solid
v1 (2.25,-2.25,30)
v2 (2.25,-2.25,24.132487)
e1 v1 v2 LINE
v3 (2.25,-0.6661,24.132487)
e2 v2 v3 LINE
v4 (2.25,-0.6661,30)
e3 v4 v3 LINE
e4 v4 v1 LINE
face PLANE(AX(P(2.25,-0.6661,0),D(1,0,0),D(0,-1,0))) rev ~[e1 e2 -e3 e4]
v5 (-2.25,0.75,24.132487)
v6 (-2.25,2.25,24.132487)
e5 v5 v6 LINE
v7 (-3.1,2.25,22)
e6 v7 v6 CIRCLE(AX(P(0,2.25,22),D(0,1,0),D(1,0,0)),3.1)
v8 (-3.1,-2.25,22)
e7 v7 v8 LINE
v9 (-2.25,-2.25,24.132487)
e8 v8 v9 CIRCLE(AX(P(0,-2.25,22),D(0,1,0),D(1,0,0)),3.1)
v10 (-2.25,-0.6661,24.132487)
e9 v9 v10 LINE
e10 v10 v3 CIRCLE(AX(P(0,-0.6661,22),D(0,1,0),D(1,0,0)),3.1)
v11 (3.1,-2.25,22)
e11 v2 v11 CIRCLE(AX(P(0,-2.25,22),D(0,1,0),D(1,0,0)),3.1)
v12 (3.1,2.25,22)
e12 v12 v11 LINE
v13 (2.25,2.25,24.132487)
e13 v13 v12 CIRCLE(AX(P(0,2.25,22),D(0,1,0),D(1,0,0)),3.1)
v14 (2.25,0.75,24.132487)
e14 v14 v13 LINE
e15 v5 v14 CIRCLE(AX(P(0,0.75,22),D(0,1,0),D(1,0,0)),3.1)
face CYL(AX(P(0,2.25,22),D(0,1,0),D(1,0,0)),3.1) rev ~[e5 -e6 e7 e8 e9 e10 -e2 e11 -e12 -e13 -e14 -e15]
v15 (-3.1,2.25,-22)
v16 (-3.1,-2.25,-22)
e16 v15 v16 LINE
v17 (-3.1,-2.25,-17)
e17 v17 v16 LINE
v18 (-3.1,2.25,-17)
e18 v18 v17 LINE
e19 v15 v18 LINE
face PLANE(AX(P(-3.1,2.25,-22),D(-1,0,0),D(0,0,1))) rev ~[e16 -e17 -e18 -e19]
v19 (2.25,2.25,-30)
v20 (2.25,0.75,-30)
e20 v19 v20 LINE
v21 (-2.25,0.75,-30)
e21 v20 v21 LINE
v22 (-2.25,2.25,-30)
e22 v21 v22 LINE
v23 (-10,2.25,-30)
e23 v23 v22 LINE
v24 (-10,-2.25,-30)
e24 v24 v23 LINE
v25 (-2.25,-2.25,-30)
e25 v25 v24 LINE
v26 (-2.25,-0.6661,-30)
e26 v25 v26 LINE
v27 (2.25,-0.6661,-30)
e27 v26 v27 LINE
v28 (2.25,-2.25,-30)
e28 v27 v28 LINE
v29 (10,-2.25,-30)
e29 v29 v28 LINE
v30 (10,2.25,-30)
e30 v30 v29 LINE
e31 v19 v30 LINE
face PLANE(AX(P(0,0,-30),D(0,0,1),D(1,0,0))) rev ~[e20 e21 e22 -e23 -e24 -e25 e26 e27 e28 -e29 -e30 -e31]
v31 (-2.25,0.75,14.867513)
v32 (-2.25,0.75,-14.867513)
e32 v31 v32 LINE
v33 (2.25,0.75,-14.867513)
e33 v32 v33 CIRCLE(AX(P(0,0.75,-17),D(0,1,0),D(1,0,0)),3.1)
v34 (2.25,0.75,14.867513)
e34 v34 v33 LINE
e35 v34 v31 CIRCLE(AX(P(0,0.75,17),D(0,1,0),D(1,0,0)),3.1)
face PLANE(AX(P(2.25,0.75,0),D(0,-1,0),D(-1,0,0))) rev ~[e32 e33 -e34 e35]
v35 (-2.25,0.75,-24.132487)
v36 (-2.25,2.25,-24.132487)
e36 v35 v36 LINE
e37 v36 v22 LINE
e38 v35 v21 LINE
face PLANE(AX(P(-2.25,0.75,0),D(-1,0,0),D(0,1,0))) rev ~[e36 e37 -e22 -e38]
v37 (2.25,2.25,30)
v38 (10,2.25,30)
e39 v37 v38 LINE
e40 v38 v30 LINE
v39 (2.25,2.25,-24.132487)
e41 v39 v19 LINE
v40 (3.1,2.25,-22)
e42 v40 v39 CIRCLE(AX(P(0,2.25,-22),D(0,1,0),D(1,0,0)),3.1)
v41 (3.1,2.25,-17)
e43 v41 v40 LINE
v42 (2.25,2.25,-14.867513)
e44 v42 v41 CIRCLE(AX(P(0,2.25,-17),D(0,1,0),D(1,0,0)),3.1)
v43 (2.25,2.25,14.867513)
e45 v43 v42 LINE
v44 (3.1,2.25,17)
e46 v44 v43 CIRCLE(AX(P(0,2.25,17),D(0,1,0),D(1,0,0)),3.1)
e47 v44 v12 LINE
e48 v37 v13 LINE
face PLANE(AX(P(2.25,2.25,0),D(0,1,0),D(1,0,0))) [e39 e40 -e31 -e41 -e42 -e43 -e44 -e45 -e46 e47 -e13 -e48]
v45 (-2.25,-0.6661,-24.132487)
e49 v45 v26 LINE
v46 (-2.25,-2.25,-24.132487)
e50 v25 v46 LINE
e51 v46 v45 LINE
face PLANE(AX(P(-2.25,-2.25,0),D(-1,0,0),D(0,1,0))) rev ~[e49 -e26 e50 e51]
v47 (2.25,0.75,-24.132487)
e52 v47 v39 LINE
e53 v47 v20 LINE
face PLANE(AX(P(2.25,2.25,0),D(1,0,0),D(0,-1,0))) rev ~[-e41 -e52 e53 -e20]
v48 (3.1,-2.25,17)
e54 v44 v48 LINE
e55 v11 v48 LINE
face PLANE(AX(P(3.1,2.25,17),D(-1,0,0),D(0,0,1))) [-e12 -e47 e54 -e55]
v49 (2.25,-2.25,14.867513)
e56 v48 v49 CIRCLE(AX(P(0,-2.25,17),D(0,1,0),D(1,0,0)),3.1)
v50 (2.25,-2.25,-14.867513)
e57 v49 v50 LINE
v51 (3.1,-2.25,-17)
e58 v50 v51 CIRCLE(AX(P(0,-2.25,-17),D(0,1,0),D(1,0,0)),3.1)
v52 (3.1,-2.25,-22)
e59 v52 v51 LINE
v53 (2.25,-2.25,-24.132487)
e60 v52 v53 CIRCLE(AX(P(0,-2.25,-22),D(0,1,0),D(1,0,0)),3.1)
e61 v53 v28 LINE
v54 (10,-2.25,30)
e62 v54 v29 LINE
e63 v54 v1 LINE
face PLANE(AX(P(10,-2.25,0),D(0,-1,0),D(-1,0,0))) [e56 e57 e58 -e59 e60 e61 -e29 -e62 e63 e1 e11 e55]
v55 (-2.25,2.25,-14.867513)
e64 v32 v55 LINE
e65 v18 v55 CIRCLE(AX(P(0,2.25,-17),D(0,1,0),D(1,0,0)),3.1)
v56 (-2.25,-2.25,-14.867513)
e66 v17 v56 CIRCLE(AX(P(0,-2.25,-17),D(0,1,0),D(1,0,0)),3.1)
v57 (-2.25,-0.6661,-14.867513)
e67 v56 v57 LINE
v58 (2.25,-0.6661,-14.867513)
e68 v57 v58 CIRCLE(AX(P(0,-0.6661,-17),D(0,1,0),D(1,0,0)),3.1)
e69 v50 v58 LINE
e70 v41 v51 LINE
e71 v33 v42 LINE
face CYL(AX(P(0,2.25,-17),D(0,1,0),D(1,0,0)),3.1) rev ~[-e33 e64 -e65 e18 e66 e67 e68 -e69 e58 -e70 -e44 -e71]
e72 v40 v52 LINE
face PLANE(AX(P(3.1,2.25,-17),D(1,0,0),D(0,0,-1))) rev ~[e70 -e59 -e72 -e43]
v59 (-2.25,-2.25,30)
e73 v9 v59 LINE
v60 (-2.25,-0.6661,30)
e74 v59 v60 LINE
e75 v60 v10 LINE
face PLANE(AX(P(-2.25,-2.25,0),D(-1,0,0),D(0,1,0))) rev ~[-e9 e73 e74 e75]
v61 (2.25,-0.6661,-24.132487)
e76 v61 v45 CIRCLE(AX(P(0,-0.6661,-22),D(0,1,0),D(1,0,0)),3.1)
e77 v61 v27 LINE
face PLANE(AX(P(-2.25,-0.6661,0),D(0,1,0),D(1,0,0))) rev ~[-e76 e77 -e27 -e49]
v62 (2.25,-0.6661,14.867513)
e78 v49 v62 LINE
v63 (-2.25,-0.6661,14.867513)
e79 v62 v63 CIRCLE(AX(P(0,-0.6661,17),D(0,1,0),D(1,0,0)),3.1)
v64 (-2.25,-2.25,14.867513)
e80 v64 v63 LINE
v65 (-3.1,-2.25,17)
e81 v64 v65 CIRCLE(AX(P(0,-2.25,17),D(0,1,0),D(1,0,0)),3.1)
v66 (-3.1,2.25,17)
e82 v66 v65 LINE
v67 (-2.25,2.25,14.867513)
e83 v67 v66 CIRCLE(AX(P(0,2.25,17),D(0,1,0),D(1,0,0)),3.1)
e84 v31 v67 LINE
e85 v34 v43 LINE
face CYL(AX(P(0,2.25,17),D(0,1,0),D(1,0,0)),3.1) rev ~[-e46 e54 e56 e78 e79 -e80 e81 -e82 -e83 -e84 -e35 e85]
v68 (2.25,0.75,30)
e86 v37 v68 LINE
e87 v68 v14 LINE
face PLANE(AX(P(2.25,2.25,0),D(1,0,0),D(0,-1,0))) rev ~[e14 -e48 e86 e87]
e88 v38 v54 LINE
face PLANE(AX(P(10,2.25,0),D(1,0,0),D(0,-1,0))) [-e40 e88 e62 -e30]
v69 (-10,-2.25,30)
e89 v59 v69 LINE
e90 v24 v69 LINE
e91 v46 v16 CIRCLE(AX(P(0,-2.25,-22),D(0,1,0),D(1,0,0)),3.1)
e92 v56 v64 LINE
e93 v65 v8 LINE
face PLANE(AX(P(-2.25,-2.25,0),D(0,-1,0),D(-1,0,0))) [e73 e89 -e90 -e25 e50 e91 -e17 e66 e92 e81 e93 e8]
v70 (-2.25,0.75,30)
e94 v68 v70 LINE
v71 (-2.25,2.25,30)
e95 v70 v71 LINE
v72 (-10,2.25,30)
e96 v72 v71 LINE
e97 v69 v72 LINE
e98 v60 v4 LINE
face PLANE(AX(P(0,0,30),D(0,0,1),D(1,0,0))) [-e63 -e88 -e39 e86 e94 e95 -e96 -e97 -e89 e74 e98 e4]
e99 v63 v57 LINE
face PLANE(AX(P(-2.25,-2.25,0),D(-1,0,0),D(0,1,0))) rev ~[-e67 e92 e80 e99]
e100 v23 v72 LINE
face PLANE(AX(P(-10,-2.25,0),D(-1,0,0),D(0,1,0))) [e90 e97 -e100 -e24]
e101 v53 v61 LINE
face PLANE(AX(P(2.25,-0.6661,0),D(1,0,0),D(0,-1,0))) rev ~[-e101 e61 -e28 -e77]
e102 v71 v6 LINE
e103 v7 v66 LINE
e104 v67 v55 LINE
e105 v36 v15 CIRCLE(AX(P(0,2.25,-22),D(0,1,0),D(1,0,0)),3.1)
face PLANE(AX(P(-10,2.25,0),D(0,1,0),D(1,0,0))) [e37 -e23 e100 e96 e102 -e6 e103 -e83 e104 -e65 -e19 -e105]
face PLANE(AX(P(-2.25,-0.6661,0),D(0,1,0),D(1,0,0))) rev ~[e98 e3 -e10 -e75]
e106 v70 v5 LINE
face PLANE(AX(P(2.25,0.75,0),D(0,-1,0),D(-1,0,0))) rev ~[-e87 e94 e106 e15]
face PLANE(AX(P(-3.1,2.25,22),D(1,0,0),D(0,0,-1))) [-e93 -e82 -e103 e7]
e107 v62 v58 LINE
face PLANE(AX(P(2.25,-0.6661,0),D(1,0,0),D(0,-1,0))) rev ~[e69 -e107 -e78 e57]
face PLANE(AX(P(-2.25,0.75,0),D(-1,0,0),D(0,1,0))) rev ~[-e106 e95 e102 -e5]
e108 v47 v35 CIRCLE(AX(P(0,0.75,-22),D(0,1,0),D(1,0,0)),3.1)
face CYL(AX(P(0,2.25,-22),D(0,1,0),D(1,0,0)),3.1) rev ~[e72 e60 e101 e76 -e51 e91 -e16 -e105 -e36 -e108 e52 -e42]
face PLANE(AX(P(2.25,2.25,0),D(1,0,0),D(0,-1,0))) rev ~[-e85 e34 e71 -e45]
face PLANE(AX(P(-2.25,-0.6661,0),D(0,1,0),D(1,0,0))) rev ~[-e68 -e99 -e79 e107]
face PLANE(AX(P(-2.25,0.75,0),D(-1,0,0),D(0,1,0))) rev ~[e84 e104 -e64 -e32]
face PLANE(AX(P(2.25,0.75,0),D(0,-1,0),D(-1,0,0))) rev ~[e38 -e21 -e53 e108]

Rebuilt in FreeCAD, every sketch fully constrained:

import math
import FreeCAD as App
import Part
import Sketcher

V = App.Vector
Q = App.Units.Quantity


def add_polygon(sketch, points):
    """Adds a closed chain of lines whose ends are joined by coincident constraints."""
    first, n = sketch.GeometryCount, len(points)
    for a, b in zip(points, points[1:] + points[:1]):
        sketch.addGeometry(Part.LineSegment(App.Vector(*a, 0), App.Vector(*b, 0)), False)
    for i in range(n):
        sketch.addConstraint(Sketcher.Constraint("Coincident", first + i, 2, first + (i + 1) % n, 1))

doc = App.newDocument("Part")
body = doc.addObject("PartDesign::Body", "Body")

# Sketch on XY plane
sketch1 = body.newObject("Sketcher::SketchObject", "Sketch")
sketch1.AttachmentSupport = (doc.getObject("XY_Plane"), [""])
sketch1.MapMode = "FlatFace"
add_polygon(sketch1, [(-2.25, 2.25), (-10, 2.25), (-10, -2.25), (-2.25, -2.25), (-2.25, -0.6661), (2.25, -0.6661), (2.25, -2.25), (10, -2.25), (10, 2.25), (2.25, 2.25), (2.25, 0.75), (-2.25, 0.75)])  # lines 0-11
sketch1.addConstraint([
    Sketcher.Constraint("Horizontal", 0),
    Sketcher.Constraint("Vertical", 1),
    Sketcher.Constraint("Horizontal", 2),
    Sketcher.Constraint("Vertical", 3),
    Sketcher.Constraint("Horizontal", 4),
    Sketcher.Constraint("Vertical", 5),
    Sketcher.Constraint("Horizontal", 6),
    Sketcher.Constraint("Vertical", 7),
    Sketcher.Constraint("Horizontal", 8),
    Sketcher.Constraint("Vertical", 9),
    Sketcher.Constraint("Horizontal", 10),
    Sketcher.Constraint("Vertical", 11),
    Sketcher.Constraint("Symmetric", 0, 2, 6, 2, -1, 1),
    Sketcher.Constraint("Symmetric", 2, 2, 8, 2, -1, 1),
    Sketcher.Constraint("Symmetric", 2, 2, 5, 2, -2),
    Sketcher.Constraint("Vertical", 3, 2, 10, 2),
    Sketcher.Constraint("Equal", 10, 1),
    Sketcher.Constraint("DistanceX", 4, 1, 4, 2, Q("4.5 mm")),
    Sketcher.Constraint("DistanceX", 1, 2, 6, 2, Q("20 mm")),
    Sketcher.Constraint("DistanceY", 5, 2, 9, 2, Q("3 mm")),
    Sketcher.Constraint("DistanceY", 3, 1, 3, 2, Q("1.584 mm")),
])
pad1 = body.newObject("PartDesign::Pad", "Pad")
pad1.Profile = sketch1
pad1.Length = 60
pad1.Midplane = True

# Sketch on XZ plane
sketch2 = body.newObject("Sketcher::SketchObject", "Sketch001")
sketch2.AttachmentSupport = (doc.getObject("XZ_Plane"), [""])
sketch2.MapMode = "FlatFace"
sketch2.AttachmentOffset = App.Placement(V(0, 0, -2.25), App.Rotation())
sketch2.addGeometry([
    Part.ArcOfCircle(Part.Circle(V(0, 17, 0), V(0, 0, 1), 3.1), math.radians(180), math.radians(360)),  # 0
    Part.LineSegment(V(-3.1, 17, 0), V(-3.1, 22, 0)),  # 1
    Part.ArcOfCircle(Part.Circle(V(0, 22, 0), V(0, 0, 1), 3.1), math.radians(0), math.radians(180)),  # 2
    Part.LineSegment(V(3.1, 22, 0), V(3.1, 17, 0)),  # 3
    Part.LineSegment(V(3.1, -17, 0), V(3.1, -22, 0)),  # 4
    Part.ArcOfCircle(Part.Circle(V(0, -22, 0), V(0, 0, 1), 3.1), math.radians(180), math.radians(360)),  # 5
    Part.LineSegment(V(-3.1, -22, 0), V(-3.1, -17, 0)),  # 6
    Part.ArcOfCircle(Part.Circle(V(0, -17, 0), V(0, 0, 1), 3.1), math.radians(0), math.radians(180)),  # 7
], False)
sketch2.addConstraint([
    Sketcher.Constraint("Tangent", 0, 1, 1, 1),
    Sketcher.Constraint("Tangent", 1, 2, 2, 2),
    Sketcher.Constraint("Tangent", 2, 1, 3, 1),
    Sketcher.Constraint("Tangent", 3, 2, 0, 2),
    Sketcher.Constraint("Tangent", 4, 2, 5, 2),
    Sketcher.Constraint("Tangent", 5, 1, 6, 1),
    Sketcher.Constraint("Tangent", 6, 2, 7, 2),
    Sketcher.Constraint("Tangent", 7, 1, 4, 1),
    Sketcher.Constraint("Vertical", 1),
    Sketcher.Constraint("Vertical", 3),
    Sketcher.Constraint("Vertical", 4),
    Sketcher.Constraint("Vertical", 6),
    Sketcher.Constraint("Equal", 2, 5),
    Sketcher.Constraint("Symmetric", 2, 3, 5, 3, -1, 1),
    Sketcher.Constraint("Symmetric", 0, 3, 7, 3, -1),
    Sketcher.Constraint("Radius", 0, Q("3.1 mm")),
    Sketcher.Constraint("DistanceY", 1, 1, 1, 2, Q("5 mm")),
    Sketcher.Constraint("DistanceY", -1, 1, 0, 3, Q("17 mm")),
])
pocket1 = body.newObject("PartDesign::Pocket", "Pocket")
pocket1.Profile = sketch2
pocket1.Length = 60
pocket1.Reversed = True

doc.recompute()
